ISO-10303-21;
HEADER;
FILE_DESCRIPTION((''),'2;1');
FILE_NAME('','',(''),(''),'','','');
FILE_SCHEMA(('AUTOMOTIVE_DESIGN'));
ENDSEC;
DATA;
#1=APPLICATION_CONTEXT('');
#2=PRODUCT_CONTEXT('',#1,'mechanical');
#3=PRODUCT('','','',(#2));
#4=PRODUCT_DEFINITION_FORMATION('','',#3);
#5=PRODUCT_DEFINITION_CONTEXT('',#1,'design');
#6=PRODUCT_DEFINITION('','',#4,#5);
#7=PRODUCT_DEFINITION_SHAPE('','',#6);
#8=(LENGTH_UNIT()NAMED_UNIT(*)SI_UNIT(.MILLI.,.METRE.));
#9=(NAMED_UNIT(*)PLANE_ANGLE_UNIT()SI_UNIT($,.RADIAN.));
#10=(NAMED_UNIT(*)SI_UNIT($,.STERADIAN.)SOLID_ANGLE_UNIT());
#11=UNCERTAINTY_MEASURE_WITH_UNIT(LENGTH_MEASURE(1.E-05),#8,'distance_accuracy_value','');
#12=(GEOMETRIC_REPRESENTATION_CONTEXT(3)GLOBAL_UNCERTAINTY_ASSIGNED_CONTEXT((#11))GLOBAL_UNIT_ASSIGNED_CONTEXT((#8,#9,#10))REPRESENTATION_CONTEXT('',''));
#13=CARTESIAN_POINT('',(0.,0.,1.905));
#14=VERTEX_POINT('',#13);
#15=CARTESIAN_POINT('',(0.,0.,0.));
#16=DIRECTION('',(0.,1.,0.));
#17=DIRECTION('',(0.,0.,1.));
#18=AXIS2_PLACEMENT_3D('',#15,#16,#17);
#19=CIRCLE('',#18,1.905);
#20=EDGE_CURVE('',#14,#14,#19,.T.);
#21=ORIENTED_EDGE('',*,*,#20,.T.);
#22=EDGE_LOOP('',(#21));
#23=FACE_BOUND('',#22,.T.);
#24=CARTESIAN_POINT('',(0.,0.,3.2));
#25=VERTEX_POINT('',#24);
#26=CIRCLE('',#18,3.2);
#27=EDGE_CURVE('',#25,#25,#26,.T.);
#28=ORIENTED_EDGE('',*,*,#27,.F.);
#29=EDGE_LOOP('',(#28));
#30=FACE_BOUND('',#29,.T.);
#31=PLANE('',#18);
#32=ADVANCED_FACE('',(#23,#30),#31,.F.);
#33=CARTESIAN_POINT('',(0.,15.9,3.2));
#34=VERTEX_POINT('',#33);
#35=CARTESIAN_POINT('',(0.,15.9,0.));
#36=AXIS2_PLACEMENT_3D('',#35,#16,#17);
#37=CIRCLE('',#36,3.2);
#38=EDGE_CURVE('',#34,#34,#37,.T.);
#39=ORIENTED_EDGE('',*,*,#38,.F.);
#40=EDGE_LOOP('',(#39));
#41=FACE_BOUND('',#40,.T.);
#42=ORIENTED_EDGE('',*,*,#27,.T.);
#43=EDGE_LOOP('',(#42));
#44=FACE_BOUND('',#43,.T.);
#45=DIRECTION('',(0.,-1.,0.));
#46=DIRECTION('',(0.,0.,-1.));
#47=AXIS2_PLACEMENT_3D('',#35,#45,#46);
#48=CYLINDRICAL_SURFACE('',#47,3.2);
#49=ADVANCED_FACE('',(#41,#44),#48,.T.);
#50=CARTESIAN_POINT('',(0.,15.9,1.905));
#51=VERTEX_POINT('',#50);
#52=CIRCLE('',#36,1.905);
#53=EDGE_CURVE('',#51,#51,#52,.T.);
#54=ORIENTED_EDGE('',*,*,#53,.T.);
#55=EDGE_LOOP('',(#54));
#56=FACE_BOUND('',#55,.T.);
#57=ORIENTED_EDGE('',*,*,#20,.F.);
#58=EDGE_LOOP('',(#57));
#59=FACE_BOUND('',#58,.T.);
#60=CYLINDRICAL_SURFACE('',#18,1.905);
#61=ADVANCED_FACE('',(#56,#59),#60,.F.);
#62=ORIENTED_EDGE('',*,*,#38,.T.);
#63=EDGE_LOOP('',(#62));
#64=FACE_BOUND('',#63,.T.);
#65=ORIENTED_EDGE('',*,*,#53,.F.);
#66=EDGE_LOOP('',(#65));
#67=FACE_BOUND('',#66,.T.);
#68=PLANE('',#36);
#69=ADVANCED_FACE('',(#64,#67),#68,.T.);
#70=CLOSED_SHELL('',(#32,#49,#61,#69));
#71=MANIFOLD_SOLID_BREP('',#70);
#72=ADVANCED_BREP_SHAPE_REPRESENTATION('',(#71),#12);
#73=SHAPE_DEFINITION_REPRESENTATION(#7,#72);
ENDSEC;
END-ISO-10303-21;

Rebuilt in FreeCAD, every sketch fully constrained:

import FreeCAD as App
import Part
import Sketcher

V = App.Vector

doc = App.newDocument("Part")
body = doc.addObject("PartDesign::Body", "Body")

# Sketch on XZ plane
sketch1 = doc.addObject("Sketcher::SketchObject", "Sketch")
body.addObject(sketch1)
sketch1.AttachmentSupport = (doc.XZ_Plane, [""])
sketch1.MapMode = "FlatFace"
sketch1.addGeometry(Part.Circle(V(0, 0, 0), V(0, 0, 1), 3.2), False)
sketch1.addConstraint(Sketcher.Constraint("Coincident", 0, 3, -1, 1))
sketch1.addConstraint(Sketcher.Constraint("Diameter", 0, 6.4))
pad1 = doc.addObject("PartDesign::Pad", "Pad")
body.addObject(pad1)
pad1.Profile = sketch1
pad1.Length = 15.9
pad1.Reversed = True

# Sketch on XZ plane
sketch2 = doc.addObject("Sketcher::SketchObject", "Sketch001")
body.addObject(sketch2)
sketch2.AttachmentSupport = (doc.XZ_Plane, [""])
sketch2.MapMode = "FlatFace"
sketch2.AttachmentOffset = App.Placement(V(0, 0, -15.9), App.Rotation())
sketch2.addGeometry(Part.Circle(V(0, 0, 0), V(0, 0, 1), 1.9), False)
sketch2.addConstraint(Sketcher.Constraint("Coincident", 0, 3, -1, 1))
sketch2.addConstraint(Sketcher.Constraint("Diameter", 0, 3.81))
pocket1 = doc.addObject("PartDesign::Pocket", "Pocket")
body.addObject(pocket1)
pocket1.Profile = sketch2
pocket1.Type = "ThroughAll"
pocket1.Reversed = True

doc.recompute()
